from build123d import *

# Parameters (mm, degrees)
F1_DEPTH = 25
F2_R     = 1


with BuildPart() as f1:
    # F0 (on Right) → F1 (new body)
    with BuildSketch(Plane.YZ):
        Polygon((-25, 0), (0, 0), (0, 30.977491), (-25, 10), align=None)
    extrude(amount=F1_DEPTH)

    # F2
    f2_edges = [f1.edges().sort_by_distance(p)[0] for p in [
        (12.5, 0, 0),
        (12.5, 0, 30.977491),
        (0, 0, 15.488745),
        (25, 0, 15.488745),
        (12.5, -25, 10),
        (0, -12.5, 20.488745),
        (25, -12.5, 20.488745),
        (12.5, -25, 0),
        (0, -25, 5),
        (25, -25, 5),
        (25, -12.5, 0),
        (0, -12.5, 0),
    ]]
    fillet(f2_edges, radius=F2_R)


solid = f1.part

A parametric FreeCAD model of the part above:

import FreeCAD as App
import Part
import Sketcher
from FreeCAD import Vector
Q = App.Units.Quantity


def add_polygon(sketch, points):
    """Adds a closed chain of lines whose ends are joined by coincident constraints."""
    first, n = sketch.GeometryCount, len(points)
    for a, b in zip(points, points[1:] + points[:1]):
        sketch.addGeometry(Part.LineSegment(App.Vector(*a, 0), App.Vector(*b, 0)), False)
    for i in range(n):
        sketch.addConstraint(Sketcher.Constraint("Coincident", first + i, 2, first + (i + 1) % n, 1))

doc = App.newDocument("Part")
params = doc.addObject("Spreadsheet::Sheet", "Params")
for row, (alias, value) in enumerate([
    ("sketch1_width", "25 mm"),
    ("sketch1_height", "10 mm"),
    ("pad1_length", "25 mm"),
    ("fillet_radius", "1 mm"),
], start=1):
    params.set(f"A{row}", alias)
    params.set(f"B{row}", "=" + value)
    params.setAlias(f"B{row}", alias)

body = doc.addObject("PartDesign::Body", "Body")

# Sketch on YZ plane
sketch1 = body.newObject("Sketcher::SketchObject", "Sketch")
sketch1.AttachmentSupport = (doc.getObject("YZ_Plane"), [""])
sketch1.MapMode = "FlatFace"
add_polygon(sketch1, [(-25, 0), (0, 0), (0, 30.977491), (-25, 10)])  # lines 0-3
sketch1.addConstraint([
    Sketcher.Constraint("Horizontal", 0),
    Sketcher.Constraint("Vertical", 1),
    Sketcher.Constraint("Vertical", 3),
    Sketcher.Constraint("Coincident", 0, 2, -1, 1),
    Sketcher.Constraint("DistanceX", 0, 1, 0, 2, 25.0),
    Sketcher.Constraint("DistanceY", 3, 2, 3, 1, 10.0),
    Sketcher.Constraint("Angle", 2, Q("-140 deg")),
])
sketch1.setExpression("Constraints[8]", "Params.sketch1_width")
sketch1.setExpression("Constraints[9]", "Params.sketch1_height")
pad1 = body.newObject("PartDesign::Pad", "Pad")
pad1.Profile = sketch1
pad1.setExpression("Length", "Params.pad1_length")
doc.recompute()

fillet = body.newObject("PartDesign::Fillet", "Fillet")
fillet.Base = (pad1, ["Edge1"])
fillet.UseAllEdges = True
fillet.setExpression("Radius", "Params.fillet_radius")

doc.recompute()
